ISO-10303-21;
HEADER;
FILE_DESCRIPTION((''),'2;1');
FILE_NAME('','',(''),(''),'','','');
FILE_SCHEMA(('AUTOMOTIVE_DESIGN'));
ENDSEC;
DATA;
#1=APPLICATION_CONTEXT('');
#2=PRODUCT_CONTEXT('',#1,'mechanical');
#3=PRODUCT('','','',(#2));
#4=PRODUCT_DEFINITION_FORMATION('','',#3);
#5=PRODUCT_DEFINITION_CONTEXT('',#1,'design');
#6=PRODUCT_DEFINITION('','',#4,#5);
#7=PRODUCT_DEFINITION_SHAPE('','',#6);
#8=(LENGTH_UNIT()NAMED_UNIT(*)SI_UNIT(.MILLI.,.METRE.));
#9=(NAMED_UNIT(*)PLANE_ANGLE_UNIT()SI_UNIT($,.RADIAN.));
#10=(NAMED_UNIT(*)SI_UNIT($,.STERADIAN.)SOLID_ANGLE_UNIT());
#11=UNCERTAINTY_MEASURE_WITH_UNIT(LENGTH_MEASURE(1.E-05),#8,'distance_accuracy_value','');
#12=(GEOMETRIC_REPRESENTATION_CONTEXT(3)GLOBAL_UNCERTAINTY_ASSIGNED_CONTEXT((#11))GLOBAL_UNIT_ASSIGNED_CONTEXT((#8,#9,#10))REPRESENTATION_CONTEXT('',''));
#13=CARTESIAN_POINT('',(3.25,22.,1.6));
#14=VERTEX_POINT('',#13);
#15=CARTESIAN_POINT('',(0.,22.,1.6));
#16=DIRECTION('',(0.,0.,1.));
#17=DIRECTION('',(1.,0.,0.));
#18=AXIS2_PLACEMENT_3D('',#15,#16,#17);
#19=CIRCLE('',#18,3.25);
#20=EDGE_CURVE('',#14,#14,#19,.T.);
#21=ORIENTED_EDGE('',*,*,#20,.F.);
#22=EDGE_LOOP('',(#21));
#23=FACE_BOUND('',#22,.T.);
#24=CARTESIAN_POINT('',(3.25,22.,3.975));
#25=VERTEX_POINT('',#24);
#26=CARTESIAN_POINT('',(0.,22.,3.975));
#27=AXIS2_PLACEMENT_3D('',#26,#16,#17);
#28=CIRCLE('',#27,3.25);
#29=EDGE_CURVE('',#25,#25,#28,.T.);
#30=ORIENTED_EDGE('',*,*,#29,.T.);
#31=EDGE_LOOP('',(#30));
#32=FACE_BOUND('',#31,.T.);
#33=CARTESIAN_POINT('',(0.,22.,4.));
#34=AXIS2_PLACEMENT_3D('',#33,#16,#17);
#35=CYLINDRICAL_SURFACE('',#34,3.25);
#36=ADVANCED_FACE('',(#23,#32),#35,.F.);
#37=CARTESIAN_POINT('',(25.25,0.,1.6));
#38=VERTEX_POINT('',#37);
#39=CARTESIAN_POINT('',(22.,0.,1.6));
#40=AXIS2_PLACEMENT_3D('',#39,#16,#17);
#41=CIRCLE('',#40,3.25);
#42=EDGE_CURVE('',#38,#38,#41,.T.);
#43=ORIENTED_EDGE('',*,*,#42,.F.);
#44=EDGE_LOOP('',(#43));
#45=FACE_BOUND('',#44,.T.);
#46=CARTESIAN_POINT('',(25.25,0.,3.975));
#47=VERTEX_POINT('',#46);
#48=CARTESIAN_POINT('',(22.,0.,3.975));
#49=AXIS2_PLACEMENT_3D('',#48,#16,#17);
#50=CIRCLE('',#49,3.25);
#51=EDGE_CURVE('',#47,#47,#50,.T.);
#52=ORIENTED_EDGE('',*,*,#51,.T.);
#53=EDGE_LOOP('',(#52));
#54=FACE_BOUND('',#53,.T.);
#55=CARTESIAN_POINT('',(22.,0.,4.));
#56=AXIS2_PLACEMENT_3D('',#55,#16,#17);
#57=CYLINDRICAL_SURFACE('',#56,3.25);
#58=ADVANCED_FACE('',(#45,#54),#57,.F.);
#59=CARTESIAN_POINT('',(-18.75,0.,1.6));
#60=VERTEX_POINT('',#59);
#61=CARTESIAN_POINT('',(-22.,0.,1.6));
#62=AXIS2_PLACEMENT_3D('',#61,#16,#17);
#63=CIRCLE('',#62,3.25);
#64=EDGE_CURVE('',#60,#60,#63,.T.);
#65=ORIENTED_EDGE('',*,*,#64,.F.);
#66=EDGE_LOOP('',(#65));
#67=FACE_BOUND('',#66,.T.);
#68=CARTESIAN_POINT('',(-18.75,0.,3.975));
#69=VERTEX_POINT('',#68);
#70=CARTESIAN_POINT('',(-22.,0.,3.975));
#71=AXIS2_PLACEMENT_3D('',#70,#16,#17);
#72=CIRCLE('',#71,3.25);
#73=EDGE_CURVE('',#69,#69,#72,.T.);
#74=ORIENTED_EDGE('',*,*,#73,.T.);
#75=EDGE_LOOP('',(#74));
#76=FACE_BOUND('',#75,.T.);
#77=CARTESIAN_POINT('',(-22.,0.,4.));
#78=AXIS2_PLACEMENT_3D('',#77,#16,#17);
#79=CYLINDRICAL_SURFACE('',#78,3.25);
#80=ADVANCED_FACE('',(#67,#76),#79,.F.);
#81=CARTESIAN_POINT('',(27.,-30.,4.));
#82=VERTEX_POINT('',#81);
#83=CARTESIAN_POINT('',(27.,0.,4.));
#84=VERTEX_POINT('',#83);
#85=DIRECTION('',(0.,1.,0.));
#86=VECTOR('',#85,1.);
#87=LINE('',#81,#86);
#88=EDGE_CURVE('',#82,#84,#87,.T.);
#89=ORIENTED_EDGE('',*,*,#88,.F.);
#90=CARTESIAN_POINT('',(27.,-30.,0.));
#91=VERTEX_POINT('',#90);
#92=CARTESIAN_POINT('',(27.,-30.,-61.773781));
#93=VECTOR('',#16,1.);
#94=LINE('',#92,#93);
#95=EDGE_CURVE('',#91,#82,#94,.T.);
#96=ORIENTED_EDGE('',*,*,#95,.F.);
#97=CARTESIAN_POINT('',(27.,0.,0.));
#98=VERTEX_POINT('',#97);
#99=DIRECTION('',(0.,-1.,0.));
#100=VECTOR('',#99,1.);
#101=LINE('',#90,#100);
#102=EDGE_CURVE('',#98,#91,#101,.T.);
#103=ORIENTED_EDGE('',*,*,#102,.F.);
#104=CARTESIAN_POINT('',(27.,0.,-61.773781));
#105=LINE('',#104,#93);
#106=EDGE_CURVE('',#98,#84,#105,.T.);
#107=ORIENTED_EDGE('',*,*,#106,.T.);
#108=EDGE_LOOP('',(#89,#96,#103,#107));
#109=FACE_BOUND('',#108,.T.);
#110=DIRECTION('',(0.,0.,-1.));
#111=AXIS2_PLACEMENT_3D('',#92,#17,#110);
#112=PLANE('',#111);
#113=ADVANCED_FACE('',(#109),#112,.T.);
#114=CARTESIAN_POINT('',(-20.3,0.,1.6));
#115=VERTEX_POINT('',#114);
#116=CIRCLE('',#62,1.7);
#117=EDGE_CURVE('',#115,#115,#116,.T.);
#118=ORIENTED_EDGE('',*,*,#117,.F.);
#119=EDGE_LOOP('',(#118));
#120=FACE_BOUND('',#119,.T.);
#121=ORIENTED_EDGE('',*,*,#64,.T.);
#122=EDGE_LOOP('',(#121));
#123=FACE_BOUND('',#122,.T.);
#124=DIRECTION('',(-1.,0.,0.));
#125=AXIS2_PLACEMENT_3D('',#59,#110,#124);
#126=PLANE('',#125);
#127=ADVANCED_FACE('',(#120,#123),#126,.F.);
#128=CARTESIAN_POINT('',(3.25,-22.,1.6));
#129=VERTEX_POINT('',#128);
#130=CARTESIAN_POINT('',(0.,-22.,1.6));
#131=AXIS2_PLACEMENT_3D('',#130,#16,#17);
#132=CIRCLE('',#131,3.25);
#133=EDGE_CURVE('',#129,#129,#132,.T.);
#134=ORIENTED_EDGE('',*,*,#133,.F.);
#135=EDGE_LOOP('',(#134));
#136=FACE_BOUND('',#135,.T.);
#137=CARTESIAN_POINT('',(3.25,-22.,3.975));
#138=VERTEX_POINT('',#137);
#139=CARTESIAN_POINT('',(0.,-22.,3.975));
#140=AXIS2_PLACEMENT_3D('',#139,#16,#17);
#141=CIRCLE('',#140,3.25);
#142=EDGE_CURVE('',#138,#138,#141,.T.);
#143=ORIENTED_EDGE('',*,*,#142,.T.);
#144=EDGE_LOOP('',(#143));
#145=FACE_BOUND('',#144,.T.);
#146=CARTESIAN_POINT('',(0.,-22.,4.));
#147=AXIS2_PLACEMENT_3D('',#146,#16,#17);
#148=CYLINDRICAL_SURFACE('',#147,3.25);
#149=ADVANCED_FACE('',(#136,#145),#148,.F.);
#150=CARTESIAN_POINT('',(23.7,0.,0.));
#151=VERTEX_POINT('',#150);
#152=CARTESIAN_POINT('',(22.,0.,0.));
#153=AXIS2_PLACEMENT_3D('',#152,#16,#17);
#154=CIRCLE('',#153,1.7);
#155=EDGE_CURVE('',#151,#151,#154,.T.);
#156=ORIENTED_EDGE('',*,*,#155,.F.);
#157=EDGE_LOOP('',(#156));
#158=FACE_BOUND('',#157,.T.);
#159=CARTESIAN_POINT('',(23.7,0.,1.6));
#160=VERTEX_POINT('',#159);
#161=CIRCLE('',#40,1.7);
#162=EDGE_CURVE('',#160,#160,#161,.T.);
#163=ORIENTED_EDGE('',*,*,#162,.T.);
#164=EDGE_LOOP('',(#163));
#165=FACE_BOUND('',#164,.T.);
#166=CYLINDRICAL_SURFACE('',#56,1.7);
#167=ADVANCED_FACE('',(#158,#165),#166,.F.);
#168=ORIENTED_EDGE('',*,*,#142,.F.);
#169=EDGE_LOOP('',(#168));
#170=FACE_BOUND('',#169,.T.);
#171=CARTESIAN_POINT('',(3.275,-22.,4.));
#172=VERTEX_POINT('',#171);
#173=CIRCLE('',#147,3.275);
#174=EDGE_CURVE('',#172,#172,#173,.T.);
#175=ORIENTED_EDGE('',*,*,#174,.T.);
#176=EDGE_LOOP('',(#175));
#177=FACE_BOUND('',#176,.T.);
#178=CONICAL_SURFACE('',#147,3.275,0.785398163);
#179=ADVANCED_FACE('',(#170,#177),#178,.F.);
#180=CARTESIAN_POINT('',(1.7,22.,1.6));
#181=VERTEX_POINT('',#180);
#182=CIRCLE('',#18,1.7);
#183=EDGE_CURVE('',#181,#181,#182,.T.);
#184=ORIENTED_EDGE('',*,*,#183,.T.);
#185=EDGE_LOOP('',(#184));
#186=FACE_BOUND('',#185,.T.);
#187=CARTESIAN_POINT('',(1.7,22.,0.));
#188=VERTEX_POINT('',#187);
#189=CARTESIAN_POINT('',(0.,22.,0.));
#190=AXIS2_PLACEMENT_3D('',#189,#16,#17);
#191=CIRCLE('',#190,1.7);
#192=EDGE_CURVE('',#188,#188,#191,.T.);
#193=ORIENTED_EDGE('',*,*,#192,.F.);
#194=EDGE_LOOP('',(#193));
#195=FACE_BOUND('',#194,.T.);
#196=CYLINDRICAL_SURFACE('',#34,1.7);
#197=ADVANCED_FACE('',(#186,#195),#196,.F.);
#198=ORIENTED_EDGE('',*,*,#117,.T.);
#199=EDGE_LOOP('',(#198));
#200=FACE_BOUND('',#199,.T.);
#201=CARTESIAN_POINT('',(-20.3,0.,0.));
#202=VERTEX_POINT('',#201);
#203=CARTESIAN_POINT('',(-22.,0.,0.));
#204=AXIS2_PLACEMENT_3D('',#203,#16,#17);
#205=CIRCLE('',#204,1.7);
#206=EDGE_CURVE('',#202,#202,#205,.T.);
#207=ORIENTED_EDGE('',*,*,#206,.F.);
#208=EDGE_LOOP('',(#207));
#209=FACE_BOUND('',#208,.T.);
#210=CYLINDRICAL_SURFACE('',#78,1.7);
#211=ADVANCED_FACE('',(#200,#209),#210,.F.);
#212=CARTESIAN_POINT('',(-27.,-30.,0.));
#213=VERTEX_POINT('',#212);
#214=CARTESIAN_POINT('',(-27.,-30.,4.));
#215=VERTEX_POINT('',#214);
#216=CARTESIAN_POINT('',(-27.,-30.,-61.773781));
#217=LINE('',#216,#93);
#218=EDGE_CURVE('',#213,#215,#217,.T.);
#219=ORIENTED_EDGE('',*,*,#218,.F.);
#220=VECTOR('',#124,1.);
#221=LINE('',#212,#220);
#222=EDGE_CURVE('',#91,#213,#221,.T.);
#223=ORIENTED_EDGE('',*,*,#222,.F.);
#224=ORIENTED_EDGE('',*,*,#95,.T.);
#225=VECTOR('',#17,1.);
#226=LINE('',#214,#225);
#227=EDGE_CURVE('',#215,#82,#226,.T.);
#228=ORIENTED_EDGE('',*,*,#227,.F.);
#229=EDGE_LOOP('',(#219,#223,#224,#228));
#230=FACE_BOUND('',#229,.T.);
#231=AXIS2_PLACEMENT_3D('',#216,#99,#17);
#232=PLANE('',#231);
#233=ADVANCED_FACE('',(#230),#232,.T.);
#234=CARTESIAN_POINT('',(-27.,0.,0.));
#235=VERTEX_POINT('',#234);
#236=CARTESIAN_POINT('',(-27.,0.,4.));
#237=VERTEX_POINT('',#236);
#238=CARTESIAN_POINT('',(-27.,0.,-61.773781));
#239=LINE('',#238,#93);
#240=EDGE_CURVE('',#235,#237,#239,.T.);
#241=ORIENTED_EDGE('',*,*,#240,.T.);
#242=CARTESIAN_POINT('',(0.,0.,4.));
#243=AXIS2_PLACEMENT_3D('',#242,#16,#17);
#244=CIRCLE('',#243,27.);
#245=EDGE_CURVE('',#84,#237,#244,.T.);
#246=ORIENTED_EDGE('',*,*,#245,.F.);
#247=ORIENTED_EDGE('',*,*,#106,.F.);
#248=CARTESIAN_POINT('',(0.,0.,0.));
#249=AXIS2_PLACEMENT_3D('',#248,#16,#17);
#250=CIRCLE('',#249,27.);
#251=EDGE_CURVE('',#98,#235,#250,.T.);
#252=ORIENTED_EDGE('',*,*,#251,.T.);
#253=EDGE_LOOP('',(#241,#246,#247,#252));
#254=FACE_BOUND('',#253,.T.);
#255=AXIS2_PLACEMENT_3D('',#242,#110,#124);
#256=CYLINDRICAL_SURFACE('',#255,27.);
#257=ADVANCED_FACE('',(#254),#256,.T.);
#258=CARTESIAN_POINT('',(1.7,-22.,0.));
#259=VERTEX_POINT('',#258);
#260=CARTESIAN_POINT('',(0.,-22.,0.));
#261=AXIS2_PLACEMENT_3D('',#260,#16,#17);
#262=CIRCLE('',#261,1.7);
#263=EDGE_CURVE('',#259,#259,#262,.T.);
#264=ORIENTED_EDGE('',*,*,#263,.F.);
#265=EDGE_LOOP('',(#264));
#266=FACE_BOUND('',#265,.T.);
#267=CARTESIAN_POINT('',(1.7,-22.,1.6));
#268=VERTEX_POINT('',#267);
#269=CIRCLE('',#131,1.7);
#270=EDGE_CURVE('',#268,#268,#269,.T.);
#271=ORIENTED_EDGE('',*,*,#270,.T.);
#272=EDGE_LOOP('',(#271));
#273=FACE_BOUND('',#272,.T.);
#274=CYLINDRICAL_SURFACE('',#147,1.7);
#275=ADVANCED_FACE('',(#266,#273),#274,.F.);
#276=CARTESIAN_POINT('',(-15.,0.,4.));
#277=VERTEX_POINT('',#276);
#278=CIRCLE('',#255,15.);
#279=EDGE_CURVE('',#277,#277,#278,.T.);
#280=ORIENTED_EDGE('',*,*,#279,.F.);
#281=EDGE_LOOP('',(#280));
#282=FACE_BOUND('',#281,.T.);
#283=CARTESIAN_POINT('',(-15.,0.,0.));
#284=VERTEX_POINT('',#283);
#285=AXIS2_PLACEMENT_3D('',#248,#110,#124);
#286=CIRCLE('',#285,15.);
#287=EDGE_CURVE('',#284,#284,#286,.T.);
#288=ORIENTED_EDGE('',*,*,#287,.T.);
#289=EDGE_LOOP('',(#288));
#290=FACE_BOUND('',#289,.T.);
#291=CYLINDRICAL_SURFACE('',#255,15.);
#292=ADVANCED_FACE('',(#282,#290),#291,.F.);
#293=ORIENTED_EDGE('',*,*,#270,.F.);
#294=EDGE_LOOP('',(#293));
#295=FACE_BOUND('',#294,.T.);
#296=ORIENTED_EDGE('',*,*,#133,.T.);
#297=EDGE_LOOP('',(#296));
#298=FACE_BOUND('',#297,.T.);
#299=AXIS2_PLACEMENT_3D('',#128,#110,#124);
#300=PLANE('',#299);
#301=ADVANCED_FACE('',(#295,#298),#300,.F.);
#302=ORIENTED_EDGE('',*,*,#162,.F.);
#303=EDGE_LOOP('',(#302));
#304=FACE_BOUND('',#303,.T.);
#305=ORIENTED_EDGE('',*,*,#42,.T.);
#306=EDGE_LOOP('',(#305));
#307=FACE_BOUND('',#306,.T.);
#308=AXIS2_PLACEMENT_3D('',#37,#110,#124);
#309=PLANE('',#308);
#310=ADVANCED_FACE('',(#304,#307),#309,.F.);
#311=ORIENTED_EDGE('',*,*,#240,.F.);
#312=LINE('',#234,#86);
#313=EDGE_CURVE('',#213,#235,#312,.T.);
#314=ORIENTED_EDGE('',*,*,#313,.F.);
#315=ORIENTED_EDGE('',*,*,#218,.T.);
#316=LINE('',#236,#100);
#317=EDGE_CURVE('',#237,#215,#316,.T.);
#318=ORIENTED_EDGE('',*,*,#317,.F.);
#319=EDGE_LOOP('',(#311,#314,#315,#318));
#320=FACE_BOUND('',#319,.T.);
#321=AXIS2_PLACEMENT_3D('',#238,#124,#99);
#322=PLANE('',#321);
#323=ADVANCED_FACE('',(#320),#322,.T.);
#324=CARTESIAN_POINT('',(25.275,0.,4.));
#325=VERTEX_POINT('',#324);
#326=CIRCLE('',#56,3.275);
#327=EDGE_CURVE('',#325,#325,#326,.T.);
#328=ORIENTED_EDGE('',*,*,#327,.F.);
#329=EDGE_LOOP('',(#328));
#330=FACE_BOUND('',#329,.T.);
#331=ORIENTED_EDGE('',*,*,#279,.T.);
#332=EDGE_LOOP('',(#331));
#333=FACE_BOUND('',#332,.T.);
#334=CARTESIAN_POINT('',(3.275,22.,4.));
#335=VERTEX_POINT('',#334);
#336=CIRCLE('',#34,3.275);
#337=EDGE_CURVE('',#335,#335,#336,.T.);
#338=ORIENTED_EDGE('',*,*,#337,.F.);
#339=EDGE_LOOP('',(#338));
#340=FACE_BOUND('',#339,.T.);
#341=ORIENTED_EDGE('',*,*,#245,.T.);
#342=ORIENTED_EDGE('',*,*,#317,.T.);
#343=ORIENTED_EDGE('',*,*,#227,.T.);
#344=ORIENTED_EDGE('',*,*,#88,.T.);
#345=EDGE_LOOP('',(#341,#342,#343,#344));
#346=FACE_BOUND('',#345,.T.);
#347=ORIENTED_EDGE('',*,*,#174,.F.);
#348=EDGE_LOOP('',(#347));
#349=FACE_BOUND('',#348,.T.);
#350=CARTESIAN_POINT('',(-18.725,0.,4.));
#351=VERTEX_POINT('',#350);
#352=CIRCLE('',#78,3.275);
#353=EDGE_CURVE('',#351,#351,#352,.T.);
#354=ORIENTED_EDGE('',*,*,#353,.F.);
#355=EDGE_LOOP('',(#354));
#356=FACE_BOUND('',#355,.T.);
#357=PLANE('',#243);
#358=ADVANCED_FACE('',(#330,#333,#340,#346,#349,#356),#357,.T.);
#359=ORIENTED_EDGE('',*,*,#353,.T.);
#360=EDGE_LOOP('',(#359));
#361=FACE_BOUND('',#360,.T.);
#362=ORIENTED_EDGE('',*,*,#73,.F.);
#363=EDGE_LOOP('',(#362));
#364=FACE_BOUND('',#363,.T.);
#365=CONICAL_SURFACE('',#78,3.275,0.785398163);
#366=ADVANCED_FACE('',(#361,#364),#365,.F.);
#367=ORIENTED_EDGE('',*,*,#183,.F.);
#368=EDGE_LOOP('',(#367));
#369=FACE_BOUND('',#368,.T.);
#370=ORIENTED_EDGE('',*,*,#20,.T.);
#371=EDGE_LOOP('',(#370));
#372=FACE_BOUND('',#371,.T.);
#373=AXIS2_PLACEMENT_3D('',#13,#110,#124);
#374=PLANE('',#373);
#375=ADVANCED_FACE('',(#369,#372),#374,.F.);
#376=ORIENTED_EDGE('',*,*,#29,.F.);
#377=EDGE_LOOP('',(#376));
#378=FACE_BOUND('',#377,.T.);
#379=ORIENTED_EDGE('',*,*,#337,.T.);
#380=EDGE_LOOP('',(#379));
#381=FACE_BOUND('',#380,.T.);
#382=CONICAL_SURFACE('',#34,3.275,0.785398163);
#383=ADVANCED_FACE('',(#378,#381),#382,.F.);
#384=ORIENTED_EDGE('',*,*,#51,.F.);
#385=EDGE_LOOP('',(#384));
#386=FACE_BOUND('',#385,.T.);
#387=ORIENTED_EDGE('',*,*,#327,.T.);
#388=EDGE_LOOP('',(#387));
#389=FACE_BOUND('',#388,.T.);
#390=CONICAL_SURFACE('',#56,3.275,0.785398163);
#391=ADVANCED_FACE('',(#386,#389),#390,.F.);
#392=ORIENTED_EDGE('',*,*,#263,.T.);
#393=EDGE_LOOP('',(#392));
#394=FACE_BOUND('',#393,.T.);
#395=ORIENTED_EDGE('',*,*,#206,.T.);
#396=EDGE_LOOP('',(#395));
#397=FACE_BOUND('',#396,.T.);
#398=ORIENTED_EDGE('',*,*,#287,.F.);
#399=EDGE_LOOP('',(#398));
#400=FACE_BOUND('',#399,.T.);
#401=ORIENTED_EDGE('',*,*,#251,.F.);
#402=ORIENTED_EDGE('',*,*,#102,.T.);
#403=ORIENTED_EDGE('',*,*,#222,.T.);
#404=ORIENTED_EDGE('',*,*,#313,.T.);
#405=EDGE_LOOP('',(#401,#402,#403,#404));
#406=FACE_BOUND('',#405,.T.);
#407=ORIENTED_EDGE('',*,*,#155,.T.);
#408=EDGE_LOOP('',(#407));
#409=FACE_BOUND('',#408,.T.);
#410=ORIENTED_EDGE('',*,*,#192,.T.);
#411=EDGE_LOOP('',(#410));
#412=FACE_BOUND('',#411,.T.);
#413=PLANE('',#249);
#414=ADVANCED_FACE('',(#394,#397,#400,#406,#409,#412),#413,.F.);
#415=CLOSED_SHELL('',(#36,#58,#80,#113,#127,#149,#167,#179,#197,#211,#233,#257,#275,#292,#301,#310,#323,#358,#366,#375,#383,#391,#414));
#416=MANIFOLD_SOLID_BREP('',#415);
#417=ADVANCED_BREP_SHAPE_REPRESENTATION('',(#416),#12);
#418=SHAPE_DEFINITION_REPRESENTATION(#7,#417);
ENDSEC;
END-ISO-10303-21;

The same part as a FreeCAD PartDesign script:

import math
import FreeCAD as App
import Part
import Sketcher
Q = App.Units.Quantity

doc = App.newDocument("Part")
body = doc.addObject("PartDesign::Body", "Body")

sketch1 = doc.addObject("Sketcher::SketchObject", "Sketch")
body.addObject(sketch1)
sketch1.AttachmentSupport = (doc.XY_Plane, [""])
sketch1.MapMode = "FlatFace"
sketch1.addGeometry(Part.Circle(App.Vector(0, 0, 0), App.Vector(0, 0, 1), 27), False)
sketch1.addConstraint([
    Sketcher.Constraint("Coincident", 0, 3, -1, 1),
    Sketcher.Constraint("Diameter", 0, Q("54 mm")),
])
pad1 = doc.addObject("PartDesign::Pad", "Pad")
body.addObject(pad1)
pad1.Profile = sketch1
pad1.Length = 4

sketch2 = doc.addObject("Sketcher::SketchObject", "Sketch001")
body.addObject(sketch2)
sketch2.AttachmentSupport = (doc.YZ_Plane, [""])
sketch2.MapMode = "FlatFace"
sketch2.AttachmentOffset = App.Placement(App.Vector(0, 0, -22), App.Rotation())
sketch2.addGeometry([
    Part.LineSegment(App.Vector(0, 0, 0), App.Vector(0, 4, 0)),
    Part.LineSegment(App.Vector(0, 4, 0), App.Vector(-3.275, 4, 0)),
    Part.LineSegment(App.Vector(-3.275, 4, 0), App.Vector(-3.25, 3.975, 0)),
    Part.LineSegment(App.Vector(-3.25, 3.975, 0), App.Vector(-3.25, 1.6, 0)),
    Part.LineSegment(App.Vector(-3.25, 1.6, 0), App.Vector(-1.7, 1.6, 0)),
    Part.LineSegment(App.Vector(-1.7, 1.6, 0), App.Vector(-1.7, 0, 0)),
    Part.LineSegment(App.Vector(-1.7, 0, 0), App.Vector(0, 0, 0)),
], False)
sketch2.addConstraint([
    Sketcher.Constraint("Coincident", 0, 2, 1, 1),
    Sketcher.Constraint("Coincident", 1, 2, 2, 1),
    Sketcher.Constraint("Coincident", 2, 2, 3, 1),
    Sketcher.Constraint("Coincident", 3, 2, 4, 1),
    Sketcher.Constraint("Coincident", 4, 2, 5, 1),
    Sketcher.Constraint("Coincident", 5, 2, 6, 1),
    Sketcher.Constraint("Coincident", 6, 2, 0, 1),
    Sketcher.Constraint("Vertical", 0),
    Sketcher.Constraint("Horizontal", 1),
    Sketcher.Constraint("Vertical", 3),
    Sketcher.Constraint("Horizontal", 4),
    Sketcher.Constraint("Vertical", 5),
    Sketcher.Constraint("Horizontal", 6),
    Sketcher.Constraint("Coincident", 6, 2, -1, 1),
    Sketcher.Constraint("DistanceY", 0, 1, 0, 2, Q("4 mm")),
    Sketcher.Constraint("Angle", 2, Q("-45 deg")),
    Sketcher.Constraint("DistanceX", 6, 1, 6, 2, Q("1.7 mm")),
    Sketcher.Constraint("DistanceY", 5, 2, 5, 1, Q("1.6 mm")),
    Sketcher.Constraint("DistanceX", 4, 1, 4, 2, Q("1.55 mm")),
    Sketcher.Constraint("DistanceX", 1, 2, 1, 1, Q("3.275 mm")),
])
groove = doc.addObject("PartDesign::Groove", "Groove")
body.addObject(groove)
groove.Profile = sketch2
groove.ReferenceAxis = (sketch2, ["V_Axis"])
groove.Angle = 360
doc.recompute()

datumline = doc.addObject("PartDesign::Line", "DatumLine")
body.addObject(datumline)
datumline.Placement = App.Placement(App.Vector(0, 0, 0), App.Rotation(App.Vector(0, 0, 1), App.Vector(0.707106781, 0.707106781, 0)))
linearpattern = doc.addObject("PartDesign::LinearPattern", "LinearPattern")
body.addObject(linearpattern)
linearpattern.Originals = [groove]
linearpattern.Direction = (datumline, [""])
linearpattern.Mode = "offset"
linearpattern.Offset = 31.112698
linearpattern.Occurrences = 2
body.Tip = linearpattern
doc.recompute()

linearpattern2 = doc.addObject("PartDesign::LinearPattern", "LinearPattern001")
body.addObject(linearpattern2)
linearpattern2.Originals = [groove]
linearpattern2.Direction = (doc.X_Axis, [""])
linearpattern2.Mode = "offset"
linearpattern2.Offset = 44
linearpattern2.Occurrences = 2
body.Tip = linearpattern2
doc.recompute()

datumline2 = doc.addObject("PartDesign::Line", "DatumLine001")
body.addObject(datumline2)
datumline2.Placement = App.Placement(App.Vector(0, 0, 0), App.Rotation(App.Vector(0, 0, 1), App.Vector(0.707106781, -0.707106781, 0)))
linearpattern3 = doc.addObject("PartDesign::LinearPattern", "LinearPattern002")
body.addObject(linearpattern3)
linearpattern3.Originals = [groove]
linearpattern3.Direction = (datumline2, [""])
linearpattern3.Mode = "offset"
linearpattern3.Offset = 31.112698
linearpattern3.Occurrences = 2
body.Tip = linearpattern3

sketch3 = doc.addObject("Sketcher::SketchObject", "Sketch002")
body.addObject(sketch3)
sketch3.AttachmentSupport = (doc.XY_Plane, [""])
sketch3.MapMode = "FlatFace"
sketch3.addGeometry([
    Part.LineSegment(App.Vector(-27, 0, 0), App.Vector(-27, -30, 0)),
    Part.LineSegment(App.Vector(-27, -30, 0), App.Vector(27, -30, 0)),
    Part.LineSegment(App.Vector(27, -30, 0), App.Vector(27, 0, 0)),
    Part.ArcOfCircle(Part.Circle(App.Vector(0, 0, 0), App.Vector(0, 0, 1), 27), math.radians(180), math.radians(360)),
], False)
sketch3.addConstraint([
    Sketcher.Constraint("Coincident", 0, 2, 1, 1),
    Sketcher.Constraint("Coincident", 1, 2, 2, 1),
    Sketcher.Constraint("Tangent", 2, 2, 3, 2),
    Sketcher.Constraint("Tangent", 3, 1, 0, 1),
    Sketcher.Constraint("Vertical", 0),
    Sketcher.Constraint("Horizontal", 1),
    Sketcher.Constraint("Vertical", 2),
    Sketcher.Constraint("Coincident", 3, 3, -1, 1),
    Sketcher.Constraint("Radius", 3, Q("27 mm")),
    Sketcher.Constraint("DistanceY", 0, 2, 0, 1, Q("30 mm")),
])
pad2 = doc.addObject("PartDesign::Pad", "Pad001")
body.addObject(pad2)
pad2.Profile = sketch3
pad2.Length = 4

sketch4 = doc.addObject("Sketcher::SketchObject", "Sketch003")
body.addObject(sketch4)
sketch4.AttachmentSupport = (doc.XY_Plane, [""])
sketch4.MapMode = "FlatFace"
sketch4.addGeometry(Part.Circle(App.Vector(0, 0, 0), App.Vector(0, 0, 1), 15), False)
sketch4.addConstraint([
    Sketcher.Constraint("Coincident", 0, 3, -1, 1),
    Sketcher.Constraint("Diameter", 0, Q("30 mm")),
])
pocket1 = doc.addObject("PartDesign::Pocket", "Pocket")
body.addObject(pocket1)
pocket1.Profile = sketch4
pocket1.Type = "ThroughAll"
pocket1.Reversed = True

doc.recompute()
